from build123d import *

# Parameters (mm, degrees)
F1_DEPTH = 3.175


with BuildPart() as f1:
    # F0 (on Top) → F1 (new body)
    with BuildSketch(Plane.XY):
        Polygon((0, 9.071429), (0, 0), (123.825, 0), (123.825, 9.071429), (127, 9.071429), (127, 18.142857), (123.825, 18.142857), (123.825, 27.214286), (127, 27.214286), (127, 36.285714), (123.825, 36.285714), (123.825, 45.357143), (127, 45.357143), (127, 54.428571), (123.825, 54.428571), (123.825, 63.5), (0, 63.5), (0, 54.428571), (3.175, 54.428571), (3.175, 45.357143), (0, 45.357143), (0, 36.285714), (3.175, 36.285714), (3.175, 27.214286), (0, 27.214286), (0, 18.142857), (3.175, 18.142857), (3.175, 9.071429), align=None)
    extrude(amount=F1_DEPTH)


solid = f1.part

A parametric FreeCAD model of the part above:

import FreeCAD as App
import Part
import Sketcher
from FreeCAD import Vector
Q = App.Units.Quantity


def add_polygon(sketch, points):
    """Adds a closed chain of lines whose ends are joined by coincident constraints."""
    first, n = sketch.GeometryCount, len(points)
    for a, b in zip(points, points[1:] + points[:1]):
        sketch.addGeometry(Part.LineSegment(App.Vector(*a, 0), App.Vector(*b, 0)), False)
    for i in range(n):
        sketch.addConstraint(Sketcher.Constraint("Coincident", first + i, 2, first + (i + 1) % n, 1))

doc = App.newDocument("Part")
body = doc.addObject("PartDesign::Body", "Body")

sketch1 = body.newObject("Sketcher::SketchObject", "Sketch")
sketch1.AttachmentSupport = (doc.getObject("XY_Plane"), [""])
sketch1.MapMode = "FlatFace"
add_polygon(sketch1, [(0, 9.071429), (0, 0), (123.825, 0), (123.825, 9.071429), (127, 9.071429), (127, 18.142857), (123.825, 18.142857), (123.825, 27.214286), (127, 27.214286), (127, 36.285714), (123.825, 36.285714), (123.825, 45.357143), (127, 45.357143), (127, 54.428571), (123.825, 54.428571), (123.825, 63.5), (0, 63.5), (0, 54.428571), (3.175, 54.428571), (3.175, 45.357143), (0, 45.357143), (0, 36.285714), (3.175, 36.285714), (3.175, 27.214286), (0, 27.214286), (0, 18.142857), (3.175, 18.142857), (3.175, 9.071429)])
sketch1.addConstraint(Sketcher.Constraint("Vertical", 0))
sketch1.addConstraint(Sketcher.Constraint("Horizontal", 1))
sketch1.addConstraint(Sketcher.Constraint("Vertical", 2))
sketch1.addConstraint(Sketcher.Constraint("Horizontal", 3))
sketch1.addConstraint(Sketcher.Constraint("Vertical", 4))
sketch1.addConstraint(Sketcher.Constraint("Horizontal", 5))
sketch1.addConstraint(Sketcher.Constraint("Vertical", 6))
sketch1.addConstraint(Sketcher.Constraint("Horizontal", 7))
sketch1.addConstraint(Sketcher.Constraint("Vertical", 8))
sketch1.addConstraint(Sketcher.Constraint("Horizontal", 9))
sketch1.addConstraint(Sketcher.Constraint("Vertical", 10))
sketch1.addConstraint(Sketcher.Constraint("Horizontal", 11))
sketch1.addConstraint(Sketcher.Constraint("Vertical", 12))
sketch1.addConstraint(Sketcher.Constraint("Horizontal", 13))
sketch1.addConstraint(Sketcher.Constraint("Vertical", 14))
sketch1.addConstraint(Sketcher.Constraint("Horizontal", 15))
sketch1.addConstraint(Sketcher.Constraint("Vertical", 16))
sketch1.addConstraint(Sketcher.Constraint("Horizontal", 17))
sketch1.addConstraint(Sketcher.Constraint("Vertical", 18))
sketch1.addConstraint(Sketcher.Constraint("Horizontal", 19))
sketch1.addConstraint(Sketcher.Constraint("Vertical", 20))
sketch1.addConstraint(Sketcher.Constraint("Horizontal", 21))
sketch1.addConstraint(Sketcher.Constraint("Vertical", 22))
sketch1.addConstraint(Sketcher.Constraint("Horizontal", 23))
sketch1.addConstraint(Sketcher.Constraint("Vertical", 24))
sketch1.addConstraint(Sketcher.Constraint("Horizontal", 25))
sketch1.addConstraint(Sketcher.Constraint("Vertical", 26))
sketch1.addConstraint(Sketcher.Constraint("Horizontal", 27))
sketch1.addConstraint(Sketcher.Constraint("Coincident", 0, 2, -1, 1))
sketch1.addConstraint(Sketcher.Constraint("PointOnObject", 15, 2, -2))
sketch1.addConstraint(Sketcher.Constraint("PointOnObject", 19, 2, -2))
sketch1.addConstraint(Sketcher.Constraint("PointOnObject", 23, 2, -2))
sketch1.addConstraint(Sketcher.Constraint("Horizontal", 13, 2, 16, 2))
sketch1.addConstraint(Sketcher.Constraint("Horizontal", 11, 2, 18, 2))
sketch1.addConstraint(Sketcher.Constraint("Horizontal", 9, 2, 20, 2))
sketch1.addConstraint(Sketcher.Constraint("Horizontal", 7, 2, 22, 2))
sketch1.addConstraint(Sketcher.Constraint("Horizontal", 5, 2, 24, 2))
sketch1.addConstraint(Sketcher.Constraint("Horizontal", 3, 2, 26, 2))
sketch1.addConstraint(Sketcher.Constraint("Vertical", 2, 2, 5, 2))
sketch1.addConstraint(Sketcher.Constraint("Vertical", 4, 2, 7, 2))
sketch1.addConstraint(Sketcher.Constraint("Vertical", 6, 2, 9, 2))
sketch1.addConstraint(Sketcher.Constraint("Vertical", 8, 2, 11, 2))
sketch1.addConstraint(Sketcher.Constraint("Vertical", 10, 2, 13, 2))
sketch1.addConstraint(Sketcher.Constraint("Vertical", 18, 2, 21, 2))
sketch1.addConstraint(Sketcher.Constraint("Vertical", 22, 2, 25, 2))
sketch1.addConstraint(Sketcher.Constraint("Equal", 13, 17))
sketch1.addConstraint(Sketcher.Constraint("Equal", 2, 4))
sketch1.addConstraint(Sketcher.Constraint("Equal", 4, 6))
sketch1.addConstraint(Sketcher.Constraint("Equal", 6, 8))
sketch1.addConstraint(Sketcher.Constraint("Equal", 8, 10))
sketch1.addConstraint(Sketcher.Constraint("Equal", 10, 12))
sketch1.addConstraint(Sketcher.Constraint("Equal", 12, 14))
sketch1.addConstraint(Sketcher.Constraint("DistanceX", -1, 1, 3, 2, Q("5 in")))
sketch1.addConstraint(Sketcher.Constraint("DistanceY", -1, 1, 14, 2, Q("2.5 in")))
sketch1.addConstraint(Sketcher.Constraint("DistanceX", 1, 1, 1, 2, Q("4.875 in")))
pad1 = body.newObject("PartDesign::Pad", "Pad")
pad1.Profile = sketch1
pad1.Length = Q("0.125 in")

doc.recompute()
